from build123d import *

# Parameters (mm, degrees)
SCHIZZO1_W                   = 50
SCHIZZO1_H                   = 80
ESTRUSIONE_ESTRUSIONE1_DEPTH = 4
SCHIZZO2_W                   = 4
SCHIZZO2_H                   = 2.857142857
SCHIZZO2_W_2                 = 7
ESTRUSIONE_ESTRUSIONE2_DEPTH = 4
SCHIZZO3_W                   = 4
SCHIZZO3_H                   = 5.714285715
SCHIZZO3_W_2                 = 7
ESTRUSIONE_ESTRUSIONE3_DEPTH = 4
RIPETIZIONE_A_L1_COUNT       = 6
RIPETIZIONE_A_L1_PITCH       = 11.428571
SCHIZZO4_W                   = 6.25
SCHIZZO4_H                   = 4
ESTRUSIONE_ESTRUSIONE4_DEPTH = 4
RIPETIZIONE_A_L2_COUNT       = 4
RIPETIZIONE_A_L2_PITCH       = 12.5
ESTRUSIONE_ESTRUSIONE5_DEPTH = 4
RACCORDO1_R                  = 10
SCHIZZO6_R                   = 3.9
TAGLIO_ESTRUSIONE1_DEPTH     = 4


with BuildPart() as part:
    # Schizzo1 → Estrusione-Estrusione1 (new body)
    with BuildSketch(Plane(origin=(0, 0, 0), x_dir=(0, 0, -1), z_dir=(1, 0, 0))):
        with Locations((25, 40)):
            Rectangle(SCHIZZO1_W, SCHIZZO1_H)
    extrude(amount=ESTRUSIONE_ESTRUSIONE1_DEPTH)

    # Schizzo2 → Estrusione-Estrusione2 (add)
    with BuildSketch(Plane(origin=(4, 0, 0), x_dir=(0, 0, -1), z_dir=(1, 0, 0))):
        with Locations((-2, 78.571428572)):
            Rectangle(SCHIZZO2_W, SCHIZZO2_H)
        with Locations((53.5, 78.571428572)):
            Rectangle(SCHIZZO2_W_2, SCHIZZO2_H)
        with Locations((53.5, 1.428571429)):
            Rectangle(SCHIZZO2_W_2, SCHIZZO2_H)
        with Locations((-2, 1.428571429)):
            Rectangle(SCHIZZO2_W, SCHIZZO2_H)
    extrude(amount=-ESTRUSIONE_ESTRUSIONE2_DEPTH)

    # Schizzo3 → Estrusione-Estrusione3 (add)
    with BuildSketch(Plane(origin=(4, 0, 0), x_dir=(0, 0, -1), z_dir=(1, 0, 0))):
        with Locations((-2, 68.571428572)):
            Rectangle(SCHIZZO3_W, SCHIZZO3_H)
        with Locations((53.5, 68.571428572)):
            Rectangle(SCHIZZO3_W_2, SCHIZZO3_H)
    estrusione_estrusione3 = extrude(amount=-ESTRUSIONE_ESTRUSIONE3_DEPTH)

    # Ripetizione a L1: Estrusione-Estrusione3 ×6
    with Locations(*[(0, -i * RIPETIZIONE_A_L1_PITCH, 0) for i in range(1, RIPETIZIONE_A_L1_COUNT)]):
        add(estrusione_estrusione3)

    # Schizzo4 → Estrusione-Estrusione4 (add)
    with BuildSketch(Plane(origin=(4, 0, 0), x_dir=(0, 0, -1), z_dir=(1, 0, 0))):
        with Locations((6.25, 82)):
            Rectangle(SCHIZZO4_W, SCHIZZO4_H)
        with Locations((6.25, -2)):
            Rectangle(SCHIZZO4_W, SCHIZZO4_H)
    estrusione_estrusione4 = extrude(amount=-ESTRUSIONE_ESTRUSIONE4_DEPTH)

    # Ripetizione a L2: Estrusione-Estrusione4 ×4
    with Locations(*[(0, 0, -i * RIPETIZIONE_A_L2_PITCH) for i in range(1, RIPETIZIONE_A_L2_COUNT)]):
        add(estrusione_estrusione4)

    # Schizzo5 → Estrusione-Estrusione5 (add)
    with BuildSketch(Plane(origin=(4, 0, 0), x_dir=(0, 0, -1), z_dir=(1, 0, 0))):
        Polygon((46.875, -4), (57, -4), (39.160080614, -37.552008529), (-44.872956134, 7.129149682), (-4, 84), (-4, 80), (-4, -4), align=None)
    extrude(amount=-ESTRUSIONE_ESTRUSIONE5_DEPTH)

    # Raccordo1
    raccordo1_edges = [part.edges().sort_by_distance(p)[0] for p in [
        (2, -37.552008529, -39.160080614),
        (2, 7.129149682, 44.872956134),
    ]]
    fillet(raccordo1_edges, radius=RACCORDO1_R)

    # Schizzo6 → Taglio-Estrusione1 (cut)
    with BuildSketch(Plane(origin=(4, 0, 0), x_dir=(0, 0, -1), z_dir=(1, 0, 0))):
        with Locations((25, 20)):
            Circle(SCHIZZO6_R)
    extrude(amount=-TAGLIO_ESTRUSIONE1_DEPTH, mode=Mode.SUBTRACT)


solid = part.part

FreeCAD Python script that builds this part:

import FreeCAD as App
import Part
import Sketcher
from FreeCAD import Vector
Q = App.Units.Quantity


def edges_at(feature, points):
    """Names of the edges that pass closest to the given points."""
    edges = feature.Shape.Edges
    near = lambda p: min(range(len(edges)), key=lambda i: edges[i].distToShape(Part.Vertex(*p))[0])
    return sorted({f"Edge{near(p) + 1}" for p in points})


def add_polygon(sketch, points):
    """Adds a closed chain of lines whose ends are joined by coincident constraints."""
    first, n = sketch.GeometryCount, len(points)
    for a, b in zip(points, points[1:] + points[:1]):
        sketch.addGeometry(Part.LineSegment(App.Vector(*a, 0), App.Vector(*b, 0)), False)
    for i in range(n):
        sketch.addConstraint(Sketcher.Constraint("Coincident", first + i, 2, first + (i + 1) % n, 1))

doc = App.newDocument("Part")
body = doc.addObject("PartDesign::Body", "Body")

sketch1 = body.newObject("Sketcher::SketchObject", "Sketch")
sketch1.AttachmentSupport = (doc.getObject("YZ_Plane"), [""])
sketch1.MapMode = "FlatFace"
add_polygon(sketch1, [(80, 0), (0, 0), (0, -50), (80, -50)])
sketch1.addConstraint([
    Sketcher.Constraint("Horizontal", 0),
    Sketcher.Constraint("Vertical", 1),
    Sketcher.Constraint("Horizontal", 2),
    Sketcher.Constraint("Vertical", 3),
    Sketcher.Constraint("Coincident", 0, 2, -1, 1),
    Sketcher.Constraint("DistanceX", 0, 2, 0, 1, Q("80 mm")),
    Sketcher.Constraint("DistanceY", 1, 2, 1, 1, Q("50 mm")),
])
pad1 = body.newObject("PartDesign::Pad", "Pad")
pad1.Profile = sketch1
pad1.Length = 4

sketch2 = body.newObject("Sketcher::SketchObject", "Sketch001")
sketch2.AttachmentSupport = (doc.getObject("YZ_Plane"), [""])
sketch2.MapMode = "FlatFace"
sketch2.AttachmentOffset = App.Placement(Vector(0, 0, 4), App.Rotation())
add_polygon(sketch2, [(80, 4), (77.1, 4), (77.1, 0), (80, 0)])
add_polygon(sketch2, [(80, -50), (77.1, -50), (77.1, -57), (80, -57)])
add_polygon(sketch2, [(2.9, -50), (0, -50), (0, -57), (2.9, -57)])
add_polygon(sketch2, [(2.9, 4), (0, 4), (0, 0), (2.9, 0)])
sketch2.addConstraint([
    Sketcher.Constraint("Horizontal", 0),
    Sketcher.Constraint("Vertical", 1),
    Sketcher.Constraint("Horizontal", 2),
    Sketcher.Constraint("Vertical", 3),
    Sketcher.Constraint("Horizontal", 4),
    Sketcher.Constraint("Vertical", 5),
    Sketcher.Constraint("Horizontal", 6),
    Sketcher.Constraint("Vertical", 7),
    Sketcher.Constraint("Horizontal", 8),
    Sketcher.Constraint("Vertical", 9),
    Sketcher.Constraint("Horizontal", 10),
    Sketcher.Constraint("Vertical", 11),
    Sketcher.Constraint("Horizontal", 12),
    Sketcher.Constraint("Vertical", 13),
    Sketcher.Constraint("Horizontal", 14),
    Sketcher.Constraint("Vertical", 15),
    Sketcher.Constraint("Coincident", 13, 2, -1, 1),
    Sketcher.Constraint("PointOnObject", 1, 2, -1),
    Sketcher.Constraint("PointOnObject", 8, 2, -2),
    Sketcher.Constraint("Horizontal", 7, 2, 8, 2),
    Sketcher.Constraint("Horizontal", 6, 2, 9, 2),
    Sketcher.Constraint("Horizontal", 3, 2, 12, 2),
    Sketcher.Constraint("Vertical", 1, 2, 4, 2),
    Sketcher.Constraint("Vertical", 3, 2, 6, 2),
    Sketcher.Constraint("Vertical", 11, 2, 14, 2),
    Sketcher.Constraint("Equal", 6, 8),
    Sketcher.Constraint("DistanceY", 1, 2, 1, 1, Q("4 mm")),
    Sketcher.Constraint("DistanceY", 5, 2, 5, 1, Q("7 mm")),
    Sketcher.Constraint("DistanceX", -1, 1, 2, 2, Q("80 mm")),
    Sketcher.Constraint("DistanceY", 4, 2, -1, 1, Q("50 mm")),
    Sketcher.Constraint("DistanceX", 0, 2, 0, 1, Q("2.857143 mm")),
])
pad2 = body.newObject("PartDesign::Pad", "Pad001")
pad2.Profile = sketch2
pad2.Length = 4
pad2.Reversed = True

sketch3 = body.newObject("Sketcher::SketchObject", "Sketch002")
sketch3.AttachmentSupport = (doc.getObject("YZ_Plane"), [""])
sketch3.MapMode = "FlatFace"
sketch3.AttachmentOffset = App.Placement(Vector(0, 0, 4), App.Rotation())
add_polygon(sketch3, [(71.4, 4), (65.7, 4), (65.7, 0), (71.4, 0)])
add_polygon(sketch3, [(71.4, -50), (65.7, -50), (65.7, -57), (71.4, -57)])
sketch3.addConstraint([
    Sketcher.Constraint("Horizontal", 0),
    Sketcher.Constraint("Vertical", 1),
    Sketcher.Constraint("Horizontal", 2),
    Sketcher.Constraint("Vertical", 3),
    Sketcher.Constraint("Horizontal", 4),
    Sketcher.Constraint("Vertical", 5),
    Sketcher.Constraint("Horizontal", 6),
    Sketcher.Constraint("Vertical", 7),
    Sketcher.Constraint("PointOnObject", 1, 2, -1),
    Sketcher.Constraint("Vertical", 1, 2, 4, 2),
    Sketcher.Constraint("Vertical", 3, 2, 6, 2),
    Sketcher.Constraint("DistanceY", 1, 2, 1, 1, Q("4 mm")),
    Sketcher.Constraint("DistanceY", 5, 2, 5, 1, Q("7 mm")),
    Sketcher.Constraint("DistanceY", 4, 2, -1, 1, Q("50 mm")),
    Sketcher.Constraint("DistanceX", 0, 2, 0, 1, Q("5.714286 mm")),
    Sketcher.Constraint("DistanceX", -1, 1, 2, 2, Q("71.428571 mm")),
])
pad3 = body.newObject("PartDesign::Pad", "Pad002")
pad3.Profile = sketch3
pad3.Length = 4
pad3.Reversed = True
doc.recompute()

linearpattern = body.newObject("PartDesign::LinearPattern", "LinearPattern")
linearpattern.Originals = [pad3]
linearpattern.Direction = (doc.getObject("Y_Axis"), [""])
linearpattern.Mode = "offset"
linearpattern.Offset = 11.428571
linearpattern.Occurrences = 6
linearpattern.Reversed = True
body.Tip = linearpattern

sketch4 = body.newObject("Sketcher::SketchObject", "Sketch003")
sketch4.AttachmentSupport = (doc.getObject("YZ_Plane"), [""])
sketch4.MapMode = "FlatFace"
sketch4.AttachmentOffset = App.Placement(Vector(0, 0, 4), App.Rotation())
add_polygon(sketch4, [(84, -3.1), (80, -3.1), (80, -9.4), (84, -9.4)])
add_polygon(sketch4, [(0, -3.1), (-4, -3.1), (-4, -9.4), (0, -9.4)])
sketch4.addConstraint([
    Sketcher.Constraint("Horizontal", 0),
    Sketcher.Constraint("Vertical", 1),
    Sketcher.Constraint("Horizontal", 2),
    Sketcher.Constraint("Vertical", 3),
    Sketcher.Constraint("Horizontal", 4),
    Sketcher.Constraint("Vertical", 5),
    Sketcher.Constraint("Horizontal", 6),
    Sketcher.Constraint("Vertical", 7),
    Sketcher.Constraint("PointOnObject", 6, 2, -2),
    Sketcher.Constraint("Horizontal", 3, 2, 4, 2),
    Sketcher.Constraint("Horizontal", 2, 2, 5, 2),
    Sketcher.Constraint("Equal", 2, 4),
    Sketcher.Constraint("DistanceX", 0, 2, 0, 1, Q("4 mm")),
    Sketcher.Constraint("DistanceX", -1, 1, 0, 2, Q("80 mm")),
    Sketcher.Constraint("DistanceY", 1, 2, 1, 1, Q("6.25 mm")),
    Sketcher.Constraint("DistanceY", 0, 2, -1, 1, Q("3.125 mm")),
])
pad4 = body.newObject("PartDesign::Pad", "Pad003")
pad4.Profile = sketch4
pad4.Length = 4
pad4.Reversed = True
doc.recompute()

linearpattern2 = body.newObject("PartDesign::LinearPattern", "LinearPattern001")
linearpattern2.Originals = [pad4]
linearpattern2.Direction = (doc.getObject("Z_Axis"), [""])
linearpattern2.Mode = "offset"
linearpattern2.Offset = 12.5
linearpattern2.Occurrences = 4
linearpattern2.Reversed = True
body.Tip = linearpattern2

sketch5 = body.newObject("Sketcher::SketchObject", "Sketch004")
sketch5.AttachmentSupport = (doc.getObject("YZ_Plane"), [""])
sketch5.MapMode = "FlatFace"
sketch5.AttachmentOffset = App.Placement(Vector(0, 0, 4), App.Rotation())
add_polygon(sketch5, [(-4, -57), (-4, 4), (84, 4), (7, 45), (-38, -39)])
sketch5.addConstraint([
    Sketcher.Constraint("Vertical", 0),
    Sketcher.Constraint("Horizontal", 1),
    Sketcher.Constraint("Perpendicular", 2, 3),
    Sketcher.Constraint("Perpendicular", 3, 4),
    Sketcher.Constraint("DistanceX", 1, 1, 1, 2, Q("88 mm")),
    Sketcher.Constraint("DistanceY", 0, 1, 0, 2, Q("61 mm")),
    Sketcher.Constraint("Angle", 2, Q("152 deg")),
    Sketcher.Constraint("Distance", 4, Q("38 mm")),
    Sketcher.Constraint("DistanceX", 0, 2, -1, 1, Q("4 mm")),
    Sketcher.Constraint("DistanceY", -1, 1, 0, 2, Q("4 mm")),
])
pad5 = body.newObject("PartDesign::Pad", "Pad004")
pad5.Profile = sketch5
pad5.Length = 4
pad5.Reversed = True
doc.recompute()

fillet = body.newObject("PartDesign::Fillet", "Fillet")
fillet.Base = (pad5, edges_at(pad5, [(2, -37.552, -39.16), (2, 7.129, 44.873)]))
fillet.Radius = 10

sketch6 = body.newObject("Sketcher::SketchObject", "Sketch005")
sketch6.AttachmentSupport = (doc.getObject("YZ_Plane"), [""])
sketch6.MapMode = "FlatFace"
sketch6.AttachmentOffset = App.Placement(Vector(0, 0, 4), App.Rotation())
sketch6.addGeometry(Part.Circle(Vector(20, -25, 0), Vector(0, 0, 1), 3.9), False)
sketch6.addConstraint([
    Sketcher.Constraint("Diameter", 0, Q("7.8 mm")),
    Sketcher.Constraint("DistanceX", -1, 1, 0, 3, Q("20 mm")),
    Sketcher.Constraint("DistanceY", 0, 3, -1, 1, Q("25 mm")),
])
pocket1 = body.newObject("PartDesign::Pocket", "Pocket")
pocket1.Profile = sketch6
pocket1.Length = 4

doc.recompute()
